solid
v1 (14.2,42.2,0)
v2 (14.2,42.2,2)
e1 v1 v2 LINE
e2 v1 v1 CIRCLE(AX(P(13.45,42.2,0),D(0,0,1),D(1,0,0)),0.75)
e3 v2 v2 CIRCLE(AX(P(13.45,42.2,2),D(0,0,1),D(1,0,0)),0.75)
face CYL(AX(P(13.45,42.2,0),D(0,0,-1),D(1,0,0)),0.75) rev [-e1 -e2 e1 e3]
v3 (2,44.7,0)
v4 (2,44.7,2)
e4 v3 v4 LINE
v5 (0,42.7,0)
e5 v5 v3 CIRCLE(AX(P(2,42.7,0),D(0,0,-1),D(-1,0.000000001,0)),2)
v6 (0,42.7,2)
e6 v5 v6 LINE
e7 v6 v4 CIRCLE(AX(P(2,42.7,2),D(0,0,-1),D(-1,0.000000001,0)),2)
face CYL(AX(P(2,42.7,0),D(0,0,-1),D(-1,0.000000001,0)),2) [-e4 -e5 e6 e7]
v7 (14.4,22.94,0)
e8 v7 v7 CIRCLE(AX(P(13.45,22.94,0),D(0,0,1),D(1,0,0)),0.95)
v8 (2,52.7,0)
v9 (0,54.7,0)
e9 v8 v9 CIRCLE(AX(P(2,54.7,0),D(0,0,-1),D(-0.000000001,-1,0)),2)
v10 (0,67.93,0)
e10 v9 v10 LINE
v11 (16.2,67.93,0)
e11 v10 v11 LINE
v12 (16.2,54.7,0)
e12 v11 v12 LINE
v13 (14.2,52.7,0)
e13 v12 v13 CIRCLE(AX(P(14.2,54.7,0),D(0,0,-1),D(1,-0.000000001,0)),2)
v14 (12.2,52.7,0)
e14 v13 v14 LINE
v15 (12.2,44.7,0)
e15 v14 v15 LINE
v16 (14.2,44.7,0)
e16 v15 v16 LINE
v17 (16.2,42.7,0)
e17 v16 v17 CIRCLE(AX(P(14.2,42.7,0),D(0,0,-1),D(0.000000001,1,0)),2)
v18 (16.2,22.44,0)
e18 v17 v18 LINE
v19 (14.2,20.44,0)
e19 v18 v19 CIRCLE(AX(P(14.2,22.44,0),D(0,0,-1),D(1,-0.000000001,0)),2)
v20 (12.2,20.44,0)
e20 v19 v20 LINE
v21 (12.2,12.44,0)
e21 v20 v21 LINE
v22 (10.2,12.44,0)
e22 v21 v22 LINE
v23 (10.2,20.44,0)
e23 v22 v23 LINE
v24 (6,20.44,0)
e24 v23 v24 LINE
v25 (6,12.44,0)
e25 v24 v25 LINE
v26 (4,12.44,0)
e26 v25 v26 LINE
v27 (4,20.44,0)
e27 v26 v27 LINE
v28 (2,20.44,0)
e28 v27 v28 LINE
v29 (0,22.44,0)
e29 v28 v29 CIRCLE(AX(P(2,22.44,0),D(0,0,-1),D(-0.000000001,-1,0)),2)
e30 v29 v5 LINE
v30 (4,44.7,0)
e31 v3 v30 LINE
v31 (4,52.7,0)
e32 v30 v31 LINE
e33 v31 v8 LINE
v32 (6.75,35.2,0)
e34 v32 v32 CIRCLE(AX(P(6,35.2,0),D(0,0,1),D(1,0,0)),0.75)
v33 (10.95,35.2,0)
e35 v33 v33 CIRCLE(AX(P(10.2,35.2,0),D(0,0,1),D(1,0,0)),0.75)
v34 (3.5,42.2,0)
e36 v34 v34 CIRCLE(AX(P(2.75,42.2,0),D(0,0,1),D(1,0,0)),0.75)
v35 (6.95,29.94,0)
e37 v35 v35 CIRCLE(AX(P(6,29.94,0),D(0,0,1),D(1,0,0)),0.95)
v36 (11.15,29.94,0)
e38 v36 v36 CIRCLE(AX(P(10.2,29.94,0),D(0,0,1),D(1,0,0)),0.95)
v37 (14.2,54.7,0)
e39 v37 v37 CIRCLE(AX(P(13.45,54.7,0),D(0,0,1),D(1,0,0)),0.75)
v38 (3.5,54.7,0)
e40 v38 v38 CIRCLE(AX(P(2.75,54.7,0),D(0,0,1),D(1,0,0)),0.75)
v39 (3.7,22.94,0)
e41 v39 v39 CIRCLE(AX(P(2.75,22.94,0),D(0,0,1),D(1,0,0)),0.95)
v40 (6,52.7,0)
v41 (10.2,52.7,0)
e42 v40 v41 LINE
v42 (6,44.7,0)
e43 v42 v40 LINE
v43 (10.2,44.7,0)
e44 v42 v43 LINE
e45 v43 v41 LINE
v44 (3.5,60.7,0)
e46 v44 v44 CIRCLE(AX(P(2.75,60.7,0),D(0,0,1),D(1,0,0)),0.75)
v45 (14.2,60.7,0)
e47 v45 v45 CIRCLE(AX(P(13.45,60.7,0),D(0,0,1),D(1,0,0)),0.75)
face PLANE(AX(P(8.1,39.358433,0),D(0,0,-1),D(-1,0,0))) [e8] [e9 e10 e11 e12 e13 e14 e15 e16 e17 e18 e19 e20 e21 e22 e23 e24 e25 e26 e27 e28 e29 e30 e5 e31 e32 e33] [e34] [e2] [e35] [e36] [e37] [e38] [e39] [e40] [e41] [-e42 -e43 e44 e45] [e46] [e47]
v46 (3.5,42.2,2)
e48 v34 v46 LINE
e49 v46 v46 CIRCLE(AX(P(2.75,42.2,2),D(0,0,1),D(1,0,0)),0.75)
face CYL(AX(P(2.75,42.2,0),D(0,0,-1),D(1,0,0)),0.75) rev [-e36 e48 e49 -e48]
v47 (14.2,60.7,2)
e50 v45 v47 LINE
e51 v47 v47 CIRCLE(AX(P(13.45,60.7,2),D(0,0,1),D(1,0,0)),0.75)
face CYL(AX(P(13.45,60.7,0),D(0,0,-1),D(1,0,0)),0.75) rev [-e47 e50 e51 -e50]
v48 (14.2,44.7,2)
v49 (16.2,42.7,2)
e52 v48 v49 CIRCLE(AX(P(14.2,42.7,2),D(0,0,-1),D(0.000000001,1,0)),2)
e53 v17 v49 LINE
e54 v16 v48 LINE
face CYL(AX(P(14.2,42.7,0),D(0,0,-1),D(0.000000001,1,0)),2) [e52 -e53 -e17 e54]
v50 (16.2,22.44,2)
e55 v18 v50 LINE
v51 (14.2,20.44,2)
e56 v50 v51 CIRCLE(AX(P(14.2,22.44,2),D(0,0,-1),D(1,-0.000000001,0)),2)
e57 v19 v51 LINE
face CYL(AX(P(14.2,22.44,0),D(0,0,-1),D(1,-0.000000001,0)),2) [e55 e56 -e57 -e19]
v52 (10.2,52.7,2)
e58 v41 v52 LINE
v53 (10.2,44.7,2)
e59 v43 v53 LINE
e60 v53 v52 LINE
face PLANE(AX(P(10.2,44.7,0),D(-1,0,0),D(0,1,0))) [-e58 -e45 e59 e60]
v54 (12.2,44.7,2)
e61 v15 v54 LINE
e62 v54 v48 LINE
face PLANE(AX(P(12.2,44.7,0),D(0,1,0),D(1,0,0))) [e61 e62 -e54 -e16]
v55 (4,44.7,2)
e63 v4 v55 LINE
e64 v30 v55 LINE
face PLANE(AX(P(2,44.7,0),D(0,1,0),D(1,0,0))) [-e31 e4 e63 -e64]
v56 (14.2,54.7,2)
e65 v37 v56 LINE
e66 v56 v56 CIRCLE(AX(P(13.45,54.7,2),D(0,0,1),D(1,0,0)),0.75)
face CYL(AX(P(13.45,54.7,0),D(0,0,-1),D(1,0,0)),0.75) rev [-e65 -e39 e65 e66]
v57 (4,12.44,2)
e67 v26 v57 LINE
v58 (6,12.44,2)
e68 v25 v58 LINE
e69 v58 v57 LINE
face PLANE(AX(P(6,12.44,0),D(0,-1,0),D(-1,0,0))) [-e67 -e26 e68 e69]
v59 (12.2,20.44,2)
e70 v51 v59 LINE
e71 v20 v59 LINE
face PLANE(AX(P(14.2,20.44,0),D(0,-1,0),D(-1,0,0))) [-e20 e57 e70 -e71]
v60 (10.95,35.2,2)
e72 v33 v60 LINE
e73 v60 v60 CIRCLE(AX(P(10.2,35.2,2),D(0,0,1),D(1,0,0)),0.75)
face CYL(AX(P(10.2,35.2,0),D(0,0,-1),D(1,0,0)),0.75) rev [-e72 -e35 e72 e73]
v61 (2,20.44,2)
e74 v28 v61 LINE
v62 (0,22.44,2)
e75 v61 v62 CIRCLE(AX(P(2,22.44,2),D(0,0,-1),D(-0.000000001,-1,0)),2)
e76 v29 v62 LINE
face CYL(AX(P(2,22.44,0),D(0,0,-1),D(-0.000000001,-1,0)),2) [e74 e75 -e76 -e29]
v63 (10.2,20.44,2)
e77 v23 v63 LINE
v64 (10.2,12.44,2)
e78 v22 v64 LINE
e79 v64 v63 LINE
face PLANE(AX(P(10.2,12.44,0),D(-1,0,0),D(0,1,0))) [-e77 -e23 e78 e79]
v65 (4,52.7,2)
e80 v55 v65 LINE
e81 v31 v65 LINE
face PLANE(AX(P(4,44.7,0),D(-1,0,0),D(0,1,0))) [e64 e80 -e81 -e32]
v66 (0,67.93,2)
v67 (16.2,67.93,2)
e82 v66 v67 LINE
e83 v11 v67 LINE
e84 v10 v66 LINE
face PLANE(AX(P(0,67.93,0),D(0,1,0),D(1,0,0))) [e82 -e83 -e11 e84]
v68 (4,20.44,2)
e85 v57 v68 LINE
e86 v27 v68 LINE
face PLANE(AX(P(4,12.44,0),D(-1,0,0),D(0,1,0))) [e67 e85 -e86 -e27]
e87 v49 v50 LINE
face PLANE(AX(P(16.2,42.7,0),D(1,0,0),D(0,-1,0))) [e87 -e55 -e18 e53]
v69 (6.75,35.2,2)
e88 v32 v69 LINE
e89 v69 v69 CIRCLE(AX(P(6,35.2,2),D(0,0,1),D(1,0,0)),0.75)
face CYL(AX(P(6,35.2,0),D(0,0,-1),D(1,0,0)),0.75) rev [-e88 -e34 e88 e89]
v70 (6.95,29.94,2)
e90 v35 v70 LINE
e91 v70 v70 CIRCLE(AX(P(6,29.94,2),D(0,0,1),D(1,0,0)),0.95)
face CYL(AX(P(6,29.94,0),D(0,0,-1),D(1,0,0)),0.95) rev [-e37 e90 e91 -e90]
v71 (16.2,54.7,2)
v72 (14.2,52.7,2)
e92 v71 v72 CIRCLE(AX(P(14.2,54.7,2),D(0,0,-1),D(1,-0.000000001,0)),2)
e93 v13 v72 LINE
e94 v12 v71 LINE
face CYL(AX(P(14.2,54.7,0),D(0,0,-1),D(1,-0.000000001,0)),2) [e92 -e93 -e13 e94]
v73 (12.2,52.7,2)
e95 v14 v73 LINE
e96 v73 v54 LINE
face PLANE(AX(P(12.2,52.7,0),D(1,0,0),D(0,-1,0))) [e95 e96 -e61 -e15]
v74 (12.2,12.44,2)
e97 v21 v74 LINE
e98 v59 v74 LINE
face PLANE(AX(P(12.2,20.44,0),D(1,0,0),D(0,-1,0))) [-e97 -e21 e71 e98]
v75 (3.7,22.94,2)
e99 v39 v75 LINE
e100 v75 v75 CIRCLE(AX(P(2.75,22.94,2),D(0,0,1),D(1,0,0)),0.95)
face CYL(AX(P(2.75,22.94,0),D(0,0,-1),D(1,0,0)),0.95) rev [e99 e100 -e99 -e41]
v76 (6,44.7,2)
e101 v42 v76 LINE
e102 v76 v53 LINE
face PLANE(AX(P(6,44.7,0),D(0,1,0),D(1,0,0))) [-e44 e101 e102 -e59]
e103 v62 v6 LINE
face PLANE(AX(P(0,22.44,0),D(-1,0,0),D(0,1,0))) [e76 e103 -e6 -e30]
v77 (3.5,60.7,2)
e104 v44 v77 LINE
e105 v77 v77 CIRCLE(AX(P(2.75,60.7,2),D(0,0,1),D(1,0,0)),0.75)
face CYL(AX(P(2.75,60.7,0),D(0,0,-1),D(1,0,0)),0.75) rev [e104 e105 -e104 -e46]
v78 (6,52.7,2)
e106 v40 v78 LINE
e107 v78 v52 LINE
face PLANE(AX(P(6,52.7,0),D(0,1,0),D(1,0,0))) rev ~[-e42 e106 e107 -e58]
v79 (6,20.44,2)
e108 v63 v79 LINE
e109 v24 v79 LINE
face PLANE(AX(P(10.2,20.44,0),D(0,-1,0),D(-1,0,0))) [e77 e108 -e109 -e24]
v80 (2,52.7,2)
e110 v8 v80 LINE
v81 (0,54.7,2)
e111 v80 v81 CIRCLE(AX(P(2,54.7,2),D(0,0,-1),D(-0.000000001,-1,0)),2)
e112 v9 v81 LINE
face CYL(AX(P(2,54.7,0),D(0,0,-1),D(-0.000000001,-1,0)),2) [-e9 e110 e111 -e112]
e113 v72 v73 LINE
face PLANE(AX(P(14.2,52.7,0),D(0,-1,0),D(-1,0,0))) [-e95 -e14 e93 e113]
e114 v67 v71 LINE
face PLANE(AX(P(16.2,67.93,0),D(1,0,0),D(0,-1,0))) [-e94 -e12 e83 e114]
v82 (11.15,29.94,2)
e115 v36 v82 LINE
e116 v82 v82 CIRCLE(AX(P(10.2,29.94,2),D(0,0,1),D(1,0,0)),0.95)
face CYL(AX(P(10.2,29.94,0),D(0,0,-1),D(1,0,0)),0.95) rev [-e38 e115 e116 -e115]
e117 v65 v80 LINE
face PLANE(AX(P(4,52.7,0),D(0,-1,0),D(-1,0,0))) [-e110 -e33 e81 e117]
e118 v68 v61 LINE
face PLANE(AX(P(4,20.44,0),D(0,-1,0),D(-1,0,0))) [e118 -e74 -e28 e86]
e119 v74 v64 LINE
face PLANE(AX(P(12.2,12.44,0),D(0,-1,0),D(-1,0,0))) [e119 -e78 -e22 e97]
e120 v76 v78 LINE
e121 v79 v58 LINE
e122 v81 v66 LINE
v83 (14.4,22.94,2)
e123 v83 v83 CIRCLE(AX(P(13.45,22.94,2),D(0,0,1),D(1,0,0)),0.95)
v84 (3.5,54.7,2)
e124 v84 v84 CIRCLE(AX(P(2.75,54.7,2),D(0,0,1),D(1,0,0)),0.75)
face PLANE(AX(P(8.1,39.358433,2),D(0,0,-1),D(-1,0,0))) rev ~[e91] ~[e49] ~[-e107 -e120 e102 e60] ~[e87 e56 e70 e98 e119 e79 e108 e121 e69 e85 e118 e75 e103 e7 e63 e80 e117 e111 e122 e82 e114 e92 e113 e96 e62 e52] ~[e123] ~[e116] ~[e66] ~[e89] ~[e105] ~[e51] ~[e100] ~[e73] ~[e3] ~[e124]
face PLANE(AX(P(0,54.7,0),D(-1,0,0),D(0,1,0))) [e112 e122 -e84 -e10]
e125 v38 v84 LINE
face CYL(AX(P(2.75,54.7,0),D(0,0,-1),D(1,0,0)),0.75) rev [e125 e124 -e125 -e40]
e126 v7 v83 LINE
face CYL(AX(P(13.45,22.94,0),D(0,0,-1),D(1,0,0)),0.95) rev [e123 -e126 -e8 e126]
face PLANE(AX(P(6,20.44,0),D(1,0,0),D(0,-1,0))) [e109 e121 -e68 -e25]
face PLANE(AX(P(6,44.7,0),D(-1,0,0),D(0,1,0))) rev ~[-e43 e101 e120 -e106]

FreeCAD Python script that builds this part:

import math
import FreeCAD as App
import Part
import Sketcher
from FreeCAD import Vector


def add_polygon(sketch, points):
    """Adds a closed chain of lines whose ends are joined by coincident constraints."""
    first, n = sketch.GeometryCount, len(points)
    for a, b in zip(points, points[1:] + points[:1]):
        sketch.addGeometry(Part.LineSegment(App.Vector(*a, 0), App.Vector(*b, 0)), False)
    for i in range(n):
        sketch.addConstraint(Sketcher.Constraint("Coincident", first + i, 2, first + (i + 1) % n, 1))

doc = App.newDocument("Part")
body = doc.addObject("PartDesign::Body", "Body")

sketch1 = body.newObject("Sketcher::SketchObject", "Sketch")
sketch1.AttachmentSupport = (doc.getObject("XY_Plane"), [""])
sketch1.MapMode = "FlatFace"
sketch1.addGeometry(Part.LineSegment(Vector(4, 52.7, 0), Vector(4, 44.7, 0)), False)
sketch1.addGeometry(Part.LineSegment(Vector(4, 44.7, 0), Vector(2, 44.7, 0)), False)
sketch1.addGeometry(Part.ArcOfCircle(Part.Circle(Vector(2, 42.7, 0), Vector(0, 0, 1), 2), math.radians(90), math.radians(180)), False)
sketch1.addGeometry(Part.LineSegment(Vector(0, 42.7, 0), Vector(0, 22.4, 0)), False)
sketch1.addGeometry(Part.ArcOfCircle(Part.Circle(Vector(2, 22.4, 0), Vector(0, 0, 1), 2), math.radians(-180), math.radians(-90)), False)
sketch1.addGeometry(Part.LineSegment(Vector(2, 20.4, 0), Vector(4, 20.4, 0)), False)
sketch1.addGeometry(Part.LineSegment(Vector(4, 20.4, 0), Vector(4, 12.4, 0)), False)
sketch1.addGeometry(Part.LineSegment(Vector(4, 12.4, 0), Vector(6, 12.4, 0)), False)
sketch1.addGeometry(Part.LineSegment(Vector(6, 12.4, 0), Vector(6, 20.4, 0)), False)
sketch1.addGeometry(Part.LineSegment(Vector(6, 20.4, 0), Vector(10.2, 20.4, 0)), False)
sketch1.addGeometry(Part.LineSegment(Vector(10.2, 20.4, 0), Vector(10.2, 12.4, 0)), False)
sketch1.addGeometry(Part.LineSegment(Vector(10.2, 12.4, 0), Vector(12.2, 12.4, 0)), False)
sketch1.addGeometry(Part.LineSegment(Vector(12.2, 12.4, 0), Vector(12.2, 20.4, 0)), False)
sketch1.addGeometry(Part.LineSegment(Vector(12.2, 20.4, 0), Vector(14.2, 20.4, 0)), False)
sketch1.addGeometry(Part.ArcOfCircle(Part.Circle(Vector(14.2, 22.4, 0), Vector(0, 0, 1), 2), math.radians(-90), math.radians(0)), False)
sketch1.addGeometry(Part.LineSegment(Vector(16.2, 22.4, 0), Vector(16.2, 42.7, 0)), False)
sketch1.addGeometry(Part.ArcOfCircle(Part.Circle(Vector(14.2, 42.7, 0), Vector(0, 0, 1), 2), math.radians(0), math.radians(90)), False)
sketch1.addGeometry(Part.LineSegment(Vector(14.2, 44.7, 0), Vector(12.2, 44.7, 0)), False)
sketch1.addGeometry(Part.LineSegment(Vector(12.2, 44.7, 0), Vector(12.2, 52.7, 0)), False)
sketch1.addGeometry(Part.LineSegment(Vector(12.2, 52.7, 0), Vector(14.2, 52.7, 0)), False)
sketch1.addGeometry(Part.ArcOfCircle(Part.Circle(Vector(14.2, 54.7, 0), Vector(0, 0, 1), 2), math.radians(-90), math.radians(0)), False)
sketch1.addGeometry(Part.LineSegment(Vector(16.2, 54.7, 0), Vector(16.2, 67.9, 0)), False)
sketch1.addGeometry(Part.LineSegment(Vector(16.2, 67.9, 0), Vector(0, 67.9, 0)), False)
sketch1.addGeometry(Part.LineSegment(Vector(0, 67.9, 0), Vector(0, 54.7, 0)), False)
sketch1.addGeometry(Part.ArcOfCircle(Part.Circle(Vector(2, 54.7, 0), Vector(0, 0, 1), 2), math.radians(-180), math.radians(-90)), False)
sketch1.addGeometry(Part.LineSegment(Vector(2, 52.7, 0), Vector(4, 52.7, 0)), False)
sketch1.addGeometry(Part.Circle(Vector(13.4, 22.9, 0), Vector(0, 0, 1), 0.9), False)
sketch1.addGeometry(Part.Circle(Vector(10.2, 29.9, 0), Vector(0, 0, 1), 0.9), False)
sketch1.addGeometry(Part.Circle(Vector(10.2, 35.2, 0), Vector(0, 0, 1), 0.8), False)
sketch1.addGeometry(Part.Circle(Vector(6, 29.9, 0), Vector(0, 0, 1), 0.9), False)
sketch1.addGeometry(Part.Circle(Vector(2.8, 22.9, 0), Vector(0, 0, 1), 0.9), False)
sketch1.addGeometry(Part.Circle(Vector(6, 35.2, 0), Vector(0, 0, 1), 0.8), False)
sketch1.addGeometry(Part.Circle(Vector(13.4, 42.2, 0), Vector(0, 0, 1), 0.8), False)
sketch1.addGeometry(Part.Circle(Vector(13.4, 54.7, 0), Vector(0, 0, 1), 0.8), False)
sketch1.addGeometry(Part.Circle(Vector(13.4, 60.7, 0), Vector(0, 0, 1), 0.8), False)
add_polygon(sketch1, [(6, 44.7), (6, 52.7), (10.2, 52.7), (10.2, 44.7)])
sketch1.addGeometry(Part.Circle(Vector(2.8, 42.2, 0), Vector(0, 0, 1), 0.8), False)
sketch1.addGeometry(Part.Circle(Vector(2.8, 54.7, 0), Vector(0, 0, 1), 0.8), False)
sketch1.addGeometry(Part.Circle(Vector(2.8, 60.7, 0), Vector(0, 0, 1), 0.8), False)
sketch1.addConstraint(Sketcher.Constraint("Coincident", 0, 2, 1, 1))
sketch1.addConstraint(Sketcher.Constraint("Tangent", 1, 2, 2, 1))
sketch1.addConstraint(Sketcher.Constraint("Tangent", 2, 2, 3, 1))
sketch1.addConstraint(Sketcher.Constraint("Tangent", 3, 2, 4, 1))
sketch1.addConstraint(Sketcher.Constraint("Tangent", 4, 2, 5, 1))
sketch1.addConstraint(Sketcher.Constraint("Coincident", 5, 2, 6, 1))
sketch1.addConstraint(Sketcher.Constraint("Coincident", 6, 2, 7, 1))
sketch1.addConstraint(Sketcher.Constraint("Coincident", 7, 2, 8, 1))
sketch1.addConstraint(Sketcher.Constraint("Coincident", 8, 2, 9, 1))
sketch1.addConstraint(Sketcher.Constraint("Coincident", 9, 2, 10, 1))
sketch1.addConstraint(Sketcher.Constraint("Coincident", 10, 2, 11, 1))
sketch1.addConstraint(Sketcher.Constraint("Coincident", 11, 2, 12, 1))
sketch1.addConstraint(Sketcher.Constraint("Coincident", 12, 2, 13, 1))
sketch1.addConstraint(Sketcher.Constraint("Tangent", 13, 2, 14, 1))
sketch1.addConstraint(Sketcher.Constraint("Tangent", 14, 2, 15, 1))
sketch1.addConstraint(Sketcher.Constraint("Tangent", 15, 2, 16, 1))
sketch1.addConstraint(Sketcher.Constraint("Tangent", 16, 2, 17, 1))
sketch1.addConstraint(Sketcher.Constraint("Coincident", 17, 2, 18, 1))
sketch1.addConstraint(Sketcher.Constraint("Coincident", 18, 2, 19, 1))
sketch1.addConstraint(Sketcher.Constraint("Tangent", 19, 2, 20, 1))
sketch1.addConstraint(Sketcher.Constraint("Tangent", 20, 2, 21, 1))
sketch1.addConstraint(Sketcher.Constraint("Coincident", 21, 2, 22, 1))
sketch1.addConstraint(Sketcher.Constraint("Coincident", 22, 2, 23, 1))
sketch1.addConstraint(Sketcher.Constraint("Tangent", 23, 2, 24, 1))
sketch1.addConstraint(Sketcher.Constraint("Tangent", 24, 2, 25, 1))
sketch1.addConstraint(Sketcher.Constraint("Coincident", 25, 2, 0, 1))
sketch1.addConstraint(Sketcher.Constraint("Vertical", 0))
sketch1.addConstraint(Sketcher.Constraint("Horizontal", 1))
sketch1.addConstraint(Sketcher.Constraint("Vertical", 3))
sketch1.addConstraint(Sketcher.Constraint("Horizontal", 5))
sketch1.addConstraint(Sketcher.Constraint("Vertical", 6))
sketch1.addConstraint(Sketcher.Constraint("Horizontal", 7))
sketch1.addConstraint(Sketcher.Constraint("Vertical", 8))
sketch1.addConstraint(Sketcher.Constraint("Horizontal", 9))
sketch1.addConstraint(Sketcher.Constraint("Vertical", 10))
sketch1.addConstraint(Sketcher.Constraint("Horizontal", 11))
sketch1.addConstraint(Sketcher.Constraint("Vertical", 12))
sketch1.addConstraint(Sketcher.Constraint("Horizontal", 13))
sketch1.addConstraint(Sketcher.Constraint("Vertical", 15))
sketch1.addConstraint(Sketcher.Constraint("Horizontal", 17))
sketch1.addConstraint(Sketcher.Constraint("Vertical", 18))
sketch1.addConstraint(Sketcher.Constraint("Horizontal", 19))
sketch1.addConstraint(Sketcher.Constraint("Vertical", 21))
sketch1.addConstraint(Sketcher.Constraint("Horizontal", 22))
sketch1.addConstraint(Sketcher.Constraint("Vertical", 23))
sketch1.addConstraint(Sketcher.Constraint("Horizontal", 25))
sketch1.addConstraint(Sketcher.Constraint("Vertical", 35))
sketch1.addConstraint(Sketcher.Constraint("Horizontal", 36))
sketch1.addConstraint(Sketcher.Constraint("Vertical", 37))
sketch1.addConstraint(Sketcher.Constraint("Horizontal", 38))
sketch1.addConstraint(Sketcher.Constraint("Equal", 2, 4))
sketch1.addConstraint(Sketcher.Constraint("Equal", 4, 14))
sketch1.addConstraint(Sketcher.Constraint("Equal", 14, 16))
sketch1.addConstraint(Sketcher.Constraint("Equal", 16, 20))
sketch1.addConstraint(Sketcher.Constraint("Equal", 20, 24))
sketch1.addConstraint(Sketcher.Constraint("Equal", 26, 27))
sketch1.addConstraint(Sketcher.Constraint("Equal", 27, 29))
sketch1.addConstraint(Sketcher.Constraint("Equal", 29, 30))
sketch1.addConstraint(Sketcher.Constraint("Equal", 28, 31))
sketch1.addConstraint(Sketcher.Constraint("Equal", 31, 32))
sketch1.addConstraint(Sketcher.Constraint("Equal", 32, 33))
sketch1.addConstraint(Sketcher.Constraint("Equal", 33, 34))
sketch1.addConstraint(Sketcher.Constraint("Equal", 34, 39))
sketch1.addConstraint(Sketcher.Constraint("Equal", 39, 40))
sketch1.addConstraint(Sketcher.Constraint("Equal", 40, 41))
sketch1.addConstraint(Sketcher.Constraint("PointOnObject", 2, 2, -2))
sketch1.addConstraint(Sketcher.Constraint("PointOnObject", 22, 2, -2))
sketch1.addConstraint(Sketcher.Constraint("Horizontal", 4, 3, 14, 3))
sketch1.addConstraint(Sketcher.Constraint("Horizontal", 2, 3, 16, 3))
sketch1.addConstraint(Sketcher.Constraint("Horizontal", 20, 3, 24, 3))
sketch1.addConstraint(Sketcher.Constraint("Horizontal", 27, 3, 29, 3))
sketch1.addConstraint(Sketcher.Constraint("Horizontal", 26, 3, 30, 3))
sketch1.addConstraint(Sketcher.Constraint("Horizontal", 28, 3, 31, 3))
sketch1.addConstraint(Sketcher.Constraint("Horizontal", 24, 3, 33, 3))
sketch1.addConstraint(Sketcher.Constraint("Horizontal", 32, 3, 39, 3))
sketch1.addConstraint(Sketcher.Constraint("Horizontal", 33, 3, 40, 3))
sketch1.addConstraint(Sketcher.Constraint("Horizontal", 34, 3, 41, 3))
sketch1.addConstraint(Sketcher.Constraint("Horizontal", 5, 2, 8, 2))
sketch1.addConstraint(Sketcher.Constraint("Horizontal", 7, 2, 10, 2))
sketch1.addConstraint(Sketcher.Constraint("Horizontal", 25, 2, 35, 2))
sketch1.addConstraint(Sketcher.Constraint("Horizontal", 17, 2, 37, 2))
sketch1.addConstraint(Sketcher.Constraint("Vertical", 16, 3, 20, 3))
sketch1.addConstraint(Sketcher.Constraint("Vertical", 27, 3, 28, 3))
sketch1.addConstraint(Sketcher.Constraint("Vertical", 29, 3, 31, 3))
sketch1.addConstraint(Sketcher.Constraint("Vertical", 26, 3, 32, 3))
sketch1.addConstraint(Sketcher.Constraint("Vertical", 32, 3, 33, 3))
sketch1.addConstraint(Sketcher.Constraint("Vertical", 33, 3, 34, 3))
sketch1.addConstraint(Sketcher.Constraint("Vertical", 30, 3, 39, 3))
sketch1.addConstraint(Sketcher.Constraint("Vertical", 39, 3, 40, 3))
sketch1.addConstraint(Sketcher.Constraint("Vertical", 40, 3, 41, 3))
sketch1.addConstraint(Sketcher.Constraint("Vertical", 0, 2, 5, 2))
sketch1.addConstraint(Sketcher.Constraint("Vertical", 31, 3, 7, 2))
sketch1.addConstraint(Sketcher.Constraint("Vertical", 28, 3, 9, 2))
sketch1.addConstraint(Sketcher.Constraint("Vertical", 12, 2, 17, 2))
sketch1.addConstraint(Sketcher.Constraint("Vertical", 8, 2, 35, 2))
sketch1.addConstraint(Sketcher.Constraint("Vertical", 10, 2, 36, 2))
sketch1.addConstraint(Sketcher.Constraint("Equal", 5, 7))
sketch1.addConstraint(Sketcher.Constraint("Equal", 7, 11))
sketch1.addConstraint(Sketcher.Constraint("Equal", 11, 13))
sketch1.addConstraint(Sketcher.Constraint("Equal", 0, 6))
sketch1.addConstraint(Sketcher.Constraint("Radius", 2, 2.0))
sketch1.addConstraint(Sketcher.Constraint("Diameter", 26, 1.9))
sketch1.addConstraint(Sketcher.Constraint("Diameter", 28, 1.5))
sketch1.addConstraint(Sketcher.Constraint("DistanceX", 1, 2, 1, 1, 2.0))
sketch1.addConstraint(Sketcher.Constraint("DistanceY", 0, 2, 0, 1, 8.0))
sketch1.addConstraint(Sketcher.Constraint("DistanceX", 9, 1, 9, 2, 4.2))
sketch1.addConstraint(Sketcher.Constraint("DistanceY", 26, 3, 27, 3, 7.0))
sketch1.addConstraint(Sketcher.Constraint("DistanceY", 28, 3, 32, 3, 7.0))
sketch1.addConstraint(Sketcher.Constraint("DistanceY", 33, 3, 34, 3, 6.0))
sketch1.addConstraint(Sketcher.Constraint("DistanceY", 3, 2, 3, 1, 20.26))
sketch1.addConstraint(Sketcher.Constraint("DistanceY", 21, 1, 21, 2, 13.23))
sketch1.addConstraint(Sketcher.Constraint("DistanceY", -1, 1, 2, 3, 42.7))
sketch1.addConstraint(Sketcher.Constraint("DistanceY", -1, 1, 28, 3, 35.2))
sketch1.addConstraint(Sketcher.Constraint("DistanceY", 14, 3, 26, 3, 0.5))
sketch1.addConstraint(Sketcher.Constraint("DistanceX", 30, 3, 26, 3, 10.7))
sketch1.addConstraint(Sketcher.Constraint("DistanceX", -1, 1, 26, 3, 13.45))
pad1 = body.newObject("PartDesign::Pad", "Pad")
pad1.Profile = sketch1
pad1.Length = 2

doc.recompute()
